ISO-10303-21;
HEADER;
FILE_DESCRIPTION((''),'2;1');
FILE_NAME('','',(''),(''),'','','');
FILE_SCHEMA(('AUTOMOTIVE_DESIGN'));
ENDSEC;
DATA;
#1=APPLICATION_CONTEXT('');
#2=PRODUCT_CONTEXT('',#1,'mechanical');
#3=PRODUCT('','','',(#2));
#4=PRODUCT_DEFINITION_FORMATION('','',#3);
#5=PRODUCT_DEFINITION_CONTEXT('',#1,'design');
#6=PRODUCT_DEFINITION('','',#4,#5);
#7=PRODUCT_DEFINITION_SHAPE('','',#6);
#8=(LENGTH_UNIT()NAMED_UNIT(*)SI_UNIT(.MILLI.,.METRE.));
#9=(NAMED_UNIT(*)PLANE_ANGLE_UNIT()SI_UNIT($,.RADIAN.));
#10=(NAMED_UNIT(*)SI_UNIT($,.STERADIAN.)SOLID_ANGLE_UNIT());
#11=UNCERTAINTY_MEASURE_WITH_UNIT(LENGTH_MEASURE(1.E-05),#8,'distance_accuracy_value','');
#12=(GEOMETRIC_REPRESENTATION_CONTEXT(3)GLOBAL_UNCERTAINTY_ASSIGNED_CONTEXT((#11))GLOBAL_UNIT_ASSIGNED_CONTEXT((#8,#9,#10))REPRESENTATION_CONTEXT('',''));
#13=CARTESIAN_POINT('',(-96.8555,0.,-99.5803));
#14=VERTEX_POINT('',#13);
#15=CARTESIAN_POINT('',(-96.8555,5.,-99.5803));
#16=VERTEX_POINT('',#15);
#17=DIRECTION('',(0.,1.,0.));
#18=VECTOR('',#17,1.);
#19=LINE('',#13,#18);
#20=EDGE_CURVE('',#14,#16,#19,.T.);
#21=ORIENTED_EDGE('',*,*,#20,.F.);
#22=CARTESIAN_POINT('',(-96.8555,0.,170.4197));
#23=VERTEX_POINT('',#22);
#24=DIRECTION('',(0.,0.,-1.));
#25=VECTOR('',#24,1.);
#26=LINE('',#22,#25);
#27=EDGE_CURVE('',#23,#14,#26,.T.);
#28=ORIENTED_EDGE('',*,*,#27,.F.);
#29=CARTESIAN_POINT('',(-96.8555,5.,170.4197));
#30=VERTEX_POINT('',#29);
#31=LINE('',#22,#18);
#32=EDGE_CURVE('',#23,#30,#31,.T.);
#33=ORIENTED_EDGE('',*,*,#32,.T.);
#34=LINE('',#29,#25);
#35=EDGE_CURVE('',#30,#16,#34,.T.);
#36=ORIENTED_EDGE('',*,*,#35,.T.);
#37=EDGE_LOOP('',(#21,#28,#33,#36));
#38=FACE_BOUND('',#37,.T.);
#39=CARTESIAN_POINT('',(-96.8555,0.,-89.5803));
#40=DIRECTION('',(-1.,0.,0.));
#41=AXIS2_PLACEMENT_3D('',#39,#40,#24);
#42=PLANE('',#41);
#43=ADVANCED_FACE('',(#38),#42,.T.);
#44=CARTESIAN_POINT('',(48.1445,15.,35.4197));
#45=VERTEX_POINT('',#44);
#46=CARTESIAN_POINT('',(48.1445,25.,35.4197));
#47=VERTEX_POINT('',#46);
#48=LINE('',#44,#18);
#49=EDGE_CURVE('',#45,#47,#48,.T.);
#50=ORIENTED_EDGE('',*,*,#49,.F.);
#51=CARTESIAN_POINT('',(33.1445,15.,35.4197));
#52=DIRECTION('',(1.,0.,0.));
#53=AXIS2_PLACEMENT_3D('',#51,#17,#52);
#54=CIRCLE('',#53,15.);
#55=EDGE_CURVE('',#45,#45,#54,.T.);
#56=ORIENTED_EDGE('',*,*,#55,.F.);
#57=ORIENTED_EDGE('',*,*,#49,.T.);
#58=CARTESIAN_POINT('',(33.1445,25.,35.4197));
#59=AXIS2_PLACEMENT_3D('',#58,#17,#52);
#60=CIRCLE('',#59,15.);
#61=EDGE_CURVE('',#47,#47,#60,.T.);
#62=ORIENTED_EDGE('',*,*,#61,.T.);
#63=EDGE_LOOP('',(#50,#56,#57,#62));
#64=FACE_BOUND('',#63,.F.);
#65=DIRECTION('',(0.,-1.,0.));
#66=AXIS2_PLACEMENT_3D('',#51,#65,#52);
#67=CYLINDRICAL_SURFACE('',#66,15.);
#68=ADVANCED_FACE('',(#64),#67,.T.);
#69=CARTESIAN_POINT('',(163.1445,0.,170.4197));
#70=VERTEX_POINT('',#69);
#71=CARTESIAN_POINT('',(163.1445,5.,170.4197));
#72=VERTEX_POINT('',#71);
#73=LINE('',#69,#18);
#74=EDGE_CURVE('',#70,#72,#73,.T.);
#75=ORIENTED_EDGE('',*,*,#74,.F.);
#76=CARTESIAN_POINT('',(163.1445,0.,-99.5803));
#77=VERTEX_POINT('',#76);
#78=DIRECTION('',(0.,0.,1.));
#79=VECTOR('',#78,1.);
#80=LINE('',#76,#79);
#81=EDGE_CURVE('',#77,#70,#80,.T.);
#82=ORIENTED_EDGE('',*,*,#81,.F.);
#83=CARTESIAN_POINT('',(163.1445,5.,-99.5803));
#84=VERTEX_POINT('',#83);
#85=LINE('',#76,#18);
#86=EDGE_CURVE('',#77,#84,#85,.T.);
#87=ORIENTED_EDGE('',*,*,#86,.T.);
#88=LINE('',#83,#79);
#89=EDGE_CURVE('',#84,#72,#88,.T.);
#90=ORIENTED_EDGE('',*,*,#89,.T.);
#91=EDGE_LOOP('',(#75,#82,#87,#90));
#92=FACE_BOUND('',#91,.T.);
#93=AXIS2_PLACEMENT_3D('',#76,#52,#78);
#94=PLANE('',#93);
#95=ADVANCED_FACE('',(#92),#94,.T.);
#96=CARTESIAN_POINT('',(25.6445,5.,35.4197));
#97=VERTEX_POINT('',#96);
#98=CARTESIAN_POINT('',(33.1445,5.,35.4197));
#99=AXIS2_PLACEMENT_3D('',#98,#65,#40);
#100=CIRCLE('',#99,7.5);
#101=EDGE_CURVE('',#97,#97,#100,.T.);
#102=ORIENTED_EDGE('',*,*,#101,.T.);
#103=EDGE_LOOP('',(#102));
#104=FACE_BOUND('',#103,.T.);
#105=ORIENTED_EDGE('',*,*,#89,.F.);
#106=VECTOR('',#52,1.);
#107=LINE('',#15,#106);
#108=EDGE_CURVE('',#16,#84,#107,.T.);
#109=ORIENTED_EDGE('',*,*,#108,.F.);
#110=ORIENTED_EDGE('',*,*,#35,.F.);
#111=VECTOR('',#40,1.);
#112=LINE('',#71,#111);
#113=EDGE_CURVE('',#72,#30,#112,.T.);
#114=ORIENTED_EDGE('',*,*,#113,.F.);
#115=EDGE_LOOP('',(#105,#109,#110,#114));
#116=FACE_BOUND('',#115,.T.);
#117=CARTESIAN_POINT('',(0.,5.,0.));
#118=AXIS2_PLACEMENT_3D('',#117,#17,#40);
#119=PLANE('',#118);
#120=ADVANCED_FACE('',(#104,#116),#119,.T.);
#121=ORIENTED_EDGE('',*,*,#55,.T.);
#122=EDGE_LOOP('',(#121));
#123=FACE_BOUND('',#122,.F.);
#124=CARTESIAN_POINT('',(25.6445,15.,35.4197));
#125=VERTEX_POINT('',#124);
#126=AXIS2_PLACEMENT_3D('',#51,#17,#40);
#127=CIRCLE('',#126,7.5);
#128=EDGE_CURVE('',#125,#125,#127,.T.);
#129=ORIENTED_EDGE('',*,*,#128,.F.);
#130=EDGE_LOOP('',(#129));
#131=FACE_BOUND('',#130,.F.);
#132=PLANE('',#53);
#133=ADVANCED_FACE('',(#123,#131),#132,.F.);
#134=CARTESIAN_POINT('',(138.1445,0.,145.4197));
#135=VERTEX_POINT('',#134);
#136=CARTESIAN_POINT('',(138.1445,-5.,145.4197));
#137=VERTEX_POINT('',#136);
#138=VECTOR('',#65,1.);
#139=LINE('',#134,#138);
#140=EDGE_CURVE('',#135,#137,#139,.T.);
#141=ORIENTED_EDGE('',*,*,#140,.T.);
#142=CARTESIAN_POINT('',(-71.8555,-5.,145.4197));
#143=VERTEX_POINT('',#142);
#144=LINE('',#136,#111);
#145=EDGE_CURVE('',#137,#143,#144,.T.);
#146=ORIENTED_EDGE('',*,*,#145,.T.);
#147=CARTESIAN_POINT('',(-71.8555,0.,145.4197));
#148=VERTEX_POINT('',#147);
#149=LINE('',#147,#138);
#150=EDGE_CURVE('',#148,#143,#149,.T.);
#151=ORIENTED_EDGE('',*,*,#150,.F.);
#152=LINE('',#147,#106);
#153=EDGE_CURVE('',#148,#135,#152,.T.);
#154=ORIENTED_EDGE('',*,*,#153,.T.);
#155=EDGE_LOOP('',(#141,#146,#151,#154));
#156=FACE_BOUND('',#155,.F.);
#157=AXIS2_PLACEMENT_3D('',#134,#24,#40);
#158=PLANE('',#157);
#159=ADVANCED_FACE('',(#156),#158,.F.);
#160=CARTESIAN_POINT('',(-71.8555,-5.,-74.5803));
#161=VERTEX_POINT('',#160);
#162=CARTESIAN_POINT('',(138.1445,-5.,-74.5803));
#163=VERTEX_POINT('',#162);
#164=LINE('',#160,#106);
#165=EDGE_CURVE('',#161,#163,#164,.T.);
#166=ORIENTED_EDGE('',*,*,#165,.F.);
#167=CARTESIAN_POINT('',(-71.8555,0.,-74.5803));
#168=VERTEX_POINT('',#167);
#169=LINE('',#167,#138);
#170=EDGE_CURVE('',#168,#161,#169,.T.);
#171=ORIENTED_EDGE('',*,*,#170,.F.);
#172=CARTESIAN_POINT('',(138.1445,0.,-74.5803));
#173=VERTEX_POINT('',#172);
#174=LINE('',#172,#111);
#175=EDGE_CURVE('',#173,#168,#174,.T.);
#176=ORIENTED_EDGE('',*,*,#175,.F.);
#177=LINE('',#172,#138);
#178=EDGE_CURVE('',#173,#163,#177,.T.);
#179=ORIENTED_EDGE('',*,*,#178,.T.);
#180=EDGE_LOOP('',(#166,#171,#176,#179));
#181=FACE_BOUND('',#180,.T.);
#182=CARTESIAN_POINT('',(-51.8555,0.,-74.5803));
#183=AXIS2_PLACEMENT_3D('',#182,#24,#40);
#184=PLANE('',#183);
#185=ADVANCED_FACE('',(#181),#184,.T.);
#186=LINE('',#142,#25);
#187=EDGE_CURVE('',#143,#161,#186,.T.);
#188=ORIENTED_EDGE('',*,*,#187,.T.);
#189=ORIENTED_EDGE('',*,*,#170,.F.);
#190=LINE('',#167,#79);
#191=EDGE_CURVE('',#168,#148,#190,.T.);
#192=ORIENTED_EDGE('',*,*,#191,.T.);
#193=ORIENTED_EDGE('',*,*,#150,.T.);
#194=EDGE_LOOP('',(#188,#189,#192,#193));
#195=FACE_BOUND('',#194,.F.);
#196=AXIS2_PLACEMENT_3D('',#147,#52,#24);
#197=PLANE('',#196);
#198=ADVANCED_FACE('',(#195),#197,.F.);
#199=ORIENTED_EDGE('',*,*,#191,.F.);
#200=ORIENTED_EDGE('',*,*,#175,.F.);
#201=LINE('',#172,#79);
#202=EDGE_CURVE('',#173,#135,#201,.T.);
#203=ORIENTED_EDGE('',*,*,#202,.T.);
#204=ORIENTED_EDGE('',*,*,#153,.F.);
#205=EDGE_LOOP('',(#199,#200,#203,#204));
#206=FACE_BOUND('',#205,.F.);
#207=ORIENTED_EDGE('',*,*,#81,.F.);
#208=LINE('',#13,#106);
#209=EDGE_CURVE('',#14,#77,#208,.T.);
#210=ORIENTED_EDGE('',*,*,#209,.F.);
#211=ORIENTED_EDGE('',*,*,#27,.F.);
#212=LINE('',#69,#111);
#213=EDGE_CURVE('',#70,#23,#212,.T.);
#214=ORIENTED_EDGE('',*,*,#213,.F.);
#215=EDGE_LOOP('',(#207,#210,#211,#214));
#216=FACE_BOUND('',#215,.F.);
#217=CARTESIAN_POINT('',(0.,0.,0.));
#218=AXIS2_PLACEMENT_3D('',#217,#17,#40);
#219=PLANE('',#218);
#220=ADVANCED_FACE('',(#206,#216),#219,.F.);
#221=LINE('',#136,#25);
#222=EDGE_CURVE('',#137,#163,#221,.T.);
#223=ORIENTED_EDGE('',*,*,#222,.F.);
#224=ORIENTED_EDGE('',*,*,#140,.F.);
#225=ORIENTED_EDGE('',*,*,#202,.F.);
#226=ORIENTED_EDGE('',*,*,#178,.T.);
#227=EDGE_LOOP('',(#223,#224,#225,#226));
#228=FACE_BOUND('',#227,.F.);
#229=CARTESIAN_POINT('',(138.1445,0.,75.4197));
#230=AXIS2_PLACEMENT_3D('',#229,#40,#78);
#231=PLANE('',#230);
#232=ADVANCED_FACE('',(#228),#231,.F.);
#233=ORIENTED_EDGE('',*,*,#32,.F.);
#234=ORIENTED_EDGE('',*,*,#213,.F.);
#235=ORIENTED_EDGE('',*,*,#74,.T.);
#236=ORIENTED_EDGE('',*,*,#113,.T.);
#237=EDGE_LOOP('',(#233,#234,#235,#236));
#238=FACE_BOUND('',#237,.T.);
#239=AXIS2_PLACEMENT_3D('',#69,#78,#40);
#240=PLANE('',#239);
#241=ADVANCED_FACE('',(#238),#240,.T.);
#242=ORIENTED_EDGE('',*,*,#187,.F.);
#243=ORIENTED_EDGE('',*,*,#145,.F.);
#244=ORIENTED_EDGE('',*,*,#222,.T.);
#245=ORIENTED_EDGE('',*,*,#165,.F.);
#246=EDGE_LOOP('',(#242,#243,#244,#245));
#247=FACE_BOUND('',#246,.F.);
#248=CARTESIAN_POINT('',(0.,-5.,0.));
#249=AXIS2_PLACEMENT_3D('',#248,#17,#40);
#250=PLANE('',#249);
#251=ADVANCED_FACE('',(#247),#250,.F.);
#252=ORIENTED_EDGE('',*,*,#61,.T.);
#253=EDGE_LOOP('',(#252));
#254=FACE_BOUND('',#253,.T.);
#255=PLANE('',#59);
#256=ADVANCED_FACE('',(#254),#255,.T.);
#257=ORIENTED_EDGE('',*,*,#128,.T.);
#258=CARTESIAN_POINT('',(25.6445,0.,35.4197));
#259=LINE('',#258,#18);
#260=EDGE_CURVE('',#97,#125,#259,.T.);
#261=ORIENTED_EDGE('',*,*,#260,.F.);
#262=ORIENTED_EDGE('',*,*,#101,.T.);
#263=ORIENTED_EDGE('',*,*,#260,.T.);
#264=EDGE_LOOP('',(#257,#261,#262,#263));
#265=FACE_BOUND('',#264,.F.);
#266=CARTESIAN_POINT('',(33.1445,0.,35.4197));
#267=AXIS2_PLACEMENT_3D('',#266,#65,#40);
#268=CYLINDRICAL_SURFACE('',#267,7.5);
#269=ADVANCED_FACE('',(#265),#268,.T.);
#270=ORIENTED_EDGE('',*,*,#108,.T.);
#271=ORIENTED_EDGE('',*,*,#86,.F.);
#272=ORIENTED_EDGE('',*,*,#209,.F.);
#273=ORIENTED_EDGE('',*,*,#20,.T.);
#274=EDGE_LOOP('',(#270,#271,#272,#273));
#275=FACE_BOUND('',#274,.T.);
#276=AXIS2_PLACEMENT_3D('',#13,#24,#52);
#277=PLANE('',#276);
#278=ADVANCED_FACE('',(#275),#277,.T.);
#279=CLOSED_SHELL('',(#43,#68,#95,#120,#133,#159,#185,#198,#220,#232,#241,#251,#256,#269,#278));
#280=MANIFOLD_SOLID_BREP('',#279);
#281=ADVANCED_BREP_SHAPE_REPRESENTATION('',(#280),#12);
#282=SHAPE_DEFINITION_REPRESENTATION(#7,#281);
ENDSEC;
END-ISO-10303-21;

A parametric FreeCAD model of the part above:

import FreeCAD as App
import Part
import Sketcher

V = App.Vector
Q = App.Units.Quantity

doc = App.newDocument("Part")
body = doc.addObject("PartDesign::Body", "Body")

# Sketch on XZ plane
sketch1 = body.newObject("Sketcher::SketchObject", "Sketch")
sketch1.AttachmentSupport = (doc.getObject("XZ_Plane"), [""])
sketch1.MapMode = "FlatFace"
sketch1.addGeometry(Part.LineSegment(V(138.1445, -74.5803, 0), V(-71.8555, -74.5803, 0)), False)
sketch1.addGeometry(Part.LineSegment(V(-71.8555, -74.5803, 0), V(-71.8555, 145.4197, 0)), False)
sketch1.addGeometry(Part.LineSegment(V(-71.8555, 145.4197, 0), V(138.1445, 145.4197, 0)), False)
sketch1.addGeometry(Part.LineSegment(V(138.1445, 145.4197, 0), V(138.1445, -74.5803, 0)), False)
sketch1.addConstraint(Sketcher.Constraint("Coincident", 0, 2, 1, 1))
sketch1.addConstraint(Sketcher.Constraint("Coincident", 1, 2, 2, 1))
sketch1.addConstraint(Sketcher.Constraint("Coincident", 2, 2, 3, 1))
sketch1.addConstraint(Sketcher.Constraint("Coincident", 3, 2, 0, 1))
sketch1.addConstraint(Sketcher.Constraint("Horizontal", 0))
sketch1.addConstraint(Sketcher.Constraint("Vertical", 1))
sketch1.addConstraint(Sketcher.Constraint("Horizontal", 2))
sketch1.addConstraint(Sketcher.Constraint("Vertical", 3))
sketch1.addConstraint(Sketcher.Constraint("DistanceX", 0, 2, 0, 1, Q("210 mm")))
sketch1.addConstraint(Sketcher.Constraint("DistanceY", 1, 1, 1, 2, Q("220 mm")))
sketch1.addConstraint(Sketcher.Constraint("DistanceX", 0, 2, -1, 1, Q("71.8555 mm")))
sketch1.addConstraint(Sketcher.Constraint("DistanceY", 0, 2, -1, 1, Q("74.5803 mm")))
pad1 = body.newObject("PartDesign::Pad", "Pad")
pad1.Profile = sketch1
pad1.Length = 5

# Sketch on XZ plane
sketch2 = body.newObject("Sketcher::SketchObject", "Sketch001")
sketch2.AttachmentSupport = (doc.getObject("XZ_Plane"), [""])
sketch2.MapMode = "FlatFace"
sketch2.addGeometry(Part.LineSegment(V(-96.8555, -99.5803, 0), V(-96.8555, 170.4197, 0)), False)
sketch2.addGeometry(Part.LineSegment(V(-96.8555, 170.4197, 0), V(163.1445, 170.4197, 0)), False)
sketch2.addGeometry(Part.LineSegment(V(163.1445, 170.4197, 0), V(163.1445, -99.5803, 0)), False)
sketch2.addGeometry(Part.LineSegment(V(163.1445, -99.5803, 0), V(-96.8555, -99.5803, 0)), False)
sketch2.addConstraint(Sketcher.Constraint("Coincident", 0, 2, 1, 1))
sketch2.addConstraint(Sketcher.Constraint("Coincident", 1, 2, 2, 1))
sketch2.addConstraint(Sketcher.Constraint("Coincident", 2, 2, 3, 1))
sketch2.addConstraint(Sketcher.Constraint("Coincident", 3, 2, 0, 1))
sketch2.addConstraint(Sketcher.Constraint("Vertical", 0))
sketch2.addConstraint(Sketcher.Constraint("Horizontal", 1))
sketch2.addConstraint(Sketcher.Constraint("Vertical", 2))
sketch2.addConstraint(Sketcher.Constraint("Horizontal", 3))
sketch2.addConstraint(Sketcher.Constraint("DistanceX", 1, 1, 1, 2, Q("260 mm")))
sketch2.addConstraint(Sketcher.Constraint("DistanceY", 0, 1, 0, 2, Q("270 mm")))
sketch2.addConstraint(Sketcher.Constraint("DistanceX", 0, 2, -1, 1, Q("96.8555 mm")))
sketch2.addConstraint(Sketcher.Constraint("DistanceY", -1, 1, 0, 2, Q("170.4197 mm")))
pad2 = body.newObject("PartDesign::Pad", "Pad001")
pad2.Profile = sketch2
pad2.Length = 5
pad2.Reversed = True

# Sketch on XZ plane
sketch3 = body.newObject("Sketcher::SketchObject", "Sketch002")
sketch3.AttachmentSupport = (doc.getObject("XZ_Plane"), [""])
sketch3.MapMode = "FlatFace"
sketch3.addGeometry(Part.Circle(V(33.1445, 35.4197, 0), V(0, 0, 1), 7.5), False)
sketch3.addConstraint(Sketcher.Constraint("Diameter", 0, Q("15 mm")))
sketch3.addConstraint(Sketcher.Constraint("DistanceX", -1, 1, 0, 3, Q("33.1445 mm")))
sketch3.addConstraint(Sketcher.Constraint("DistanceY", -1, 1, 0, 3, Q("35.4197 mm")))
pad3 = body.newObject("PartDesign::Pad", "Pad002")
pad3.Profile = sketch3
pad3.Length = 15
pad3.Reversed = True

# Sketch on XZ plane
sketch4 = body.newObject("Sketcher::SketchObject", "Sketch003")
sketch4.AttachmentSupport = (doc.getObject("XZ_Plane"), [""])
sketch4.MapMode = "FlatFace"
sketch4.AttachmentOffset = App.Placement(V(0, 0, -15), App.Rotation())
sketch4.addGeometry(Part.Circle(V(33.1445, 35.4197, 0), V(0, 0, 1), 15), False)
sketch4.addConstraint(Sketcher.Constraint("Diameter", 0, Q("30 mm")))
sketch4.addConstraint(Sketcher.Constraint("DistanceX", -1, 1, 0, 3, Q("33.1445 mm")))
sketch4.addConstraint(Sketcher.Constraint("DistanceY", -1, 1, 0, 3, Q("35.4197 mm")))
pad4 = body.newObject("PartDesign::Pad", "Pad003")
pad4.Profile = sketch4
pad4.Length = 10
pad4.Reversed = True

doc.recompute()
